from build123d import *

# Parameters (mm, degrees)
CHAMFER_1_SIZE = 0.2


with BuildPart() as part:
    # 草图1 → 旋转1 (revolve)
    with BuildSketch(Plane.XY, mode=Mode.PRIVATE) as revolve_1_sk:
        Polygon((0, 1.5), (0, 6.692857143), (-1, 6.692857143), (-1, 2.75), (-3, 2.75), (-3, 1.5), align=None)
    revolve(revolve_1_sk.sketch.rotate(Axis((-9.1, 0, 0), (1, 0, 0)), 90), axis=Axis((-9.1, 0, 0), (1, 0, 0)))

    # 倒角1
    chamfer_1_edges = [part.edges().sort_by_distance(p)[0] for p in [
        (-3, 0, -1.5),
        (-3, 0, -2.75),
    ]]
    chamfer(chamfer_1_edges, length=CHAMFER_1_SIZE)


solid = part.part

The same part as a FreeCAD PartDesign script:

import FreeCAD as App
import Part
import Sketcher

V = App.Vector


def edges_at(feature, points):
    """Names of the edges that pass closest to the given points."""
    edges = feature.Shape.Edges
    near = lambda p: min(range(len(edges)), key=lambda i: edges[i].distToShape(Part.Vertex(*p))[0])
    return sorted({f"Edge{near(p) + 1}" for p in points})


def add_polygon(sketch, points):
    """Adds a closed chain of lines whose ends are joined by coincident constraints."""
    first, n = sketch.GeometryCount, len(points)
    for a, b in zip(points, points[1:] + points[:1]):
        sketch.addGeometry(Part.LineSegment(App.Vector(*a, 0), App.Vector(*b, 0)), False)
    for i in range(n):
        sketch.addConstraint(Sketcher.Constraint("Coincident", first + i, 2, first + (i + 1) % n, 1))

doc = App.newDocument("Part")
body = doc.addObject("PartDesign::Body", "Body")

sketch1 = body.newObject("Sketcher::SketchObject", "Sketch")
sketch1.AttachmentSupport = (doc.getObject("XY_Plane"), [""])
sketch1.MapMode = "FlatFace"
add_polygon(sketch1, [(0, 1.5), (0, 6.692857), (-1, 6.692857), (-1, 2.75), (-3, 2.75), (-3, 1.5)])
sketch1.addConstraint([
    Sketcher.Constraint("Vertical", 0),
    Sketcher.Constraint("Horizontal", 1),
    Sketcher.Constraint("Vertical", 2),
    Sketcher.Constraint("Horizontal", 3),
    Sketcher.Constraint("Vertical", 4),
    Sketcher.Constraint("Horizontal", 5),
    Sketcher.Constraint("PointOnObject", 0, 2, -2),
    Sketcher.Constraint("DistanceX", 1, 2, 1, 1, 1.0),
    Sketcher.Constraint("DistanceX", 3, 2, 3, 1, 2.0),
    Sketcher.Constraint("DistanceY", 4, 2, 4, 1, 1.25),
    Sketcher.Constraint("DistanceY", -1, 1, 4, 2, 1.5),
    Sketcher.Constraint("DistanceY", 0, 1, 0, 2, 5.192857),
])
revolution = body.newObject("PartDesign::Revolution", "Revolution")
revolution.Profile = sketch1
revolution.ReferenceAxis = (sketch1, ["H_Axis"])
revolution.Angle = 360
doc.recompute()

chamfer = body.newObject("PartDesign::Chamfer", "Chamfer")
chamfer.Base = (revolution, edges_at(revolution, [(-3, 0, -1.5), (-3, 0, -2.75)]))
chamfer.Size = 0.2

doc.recompute()
